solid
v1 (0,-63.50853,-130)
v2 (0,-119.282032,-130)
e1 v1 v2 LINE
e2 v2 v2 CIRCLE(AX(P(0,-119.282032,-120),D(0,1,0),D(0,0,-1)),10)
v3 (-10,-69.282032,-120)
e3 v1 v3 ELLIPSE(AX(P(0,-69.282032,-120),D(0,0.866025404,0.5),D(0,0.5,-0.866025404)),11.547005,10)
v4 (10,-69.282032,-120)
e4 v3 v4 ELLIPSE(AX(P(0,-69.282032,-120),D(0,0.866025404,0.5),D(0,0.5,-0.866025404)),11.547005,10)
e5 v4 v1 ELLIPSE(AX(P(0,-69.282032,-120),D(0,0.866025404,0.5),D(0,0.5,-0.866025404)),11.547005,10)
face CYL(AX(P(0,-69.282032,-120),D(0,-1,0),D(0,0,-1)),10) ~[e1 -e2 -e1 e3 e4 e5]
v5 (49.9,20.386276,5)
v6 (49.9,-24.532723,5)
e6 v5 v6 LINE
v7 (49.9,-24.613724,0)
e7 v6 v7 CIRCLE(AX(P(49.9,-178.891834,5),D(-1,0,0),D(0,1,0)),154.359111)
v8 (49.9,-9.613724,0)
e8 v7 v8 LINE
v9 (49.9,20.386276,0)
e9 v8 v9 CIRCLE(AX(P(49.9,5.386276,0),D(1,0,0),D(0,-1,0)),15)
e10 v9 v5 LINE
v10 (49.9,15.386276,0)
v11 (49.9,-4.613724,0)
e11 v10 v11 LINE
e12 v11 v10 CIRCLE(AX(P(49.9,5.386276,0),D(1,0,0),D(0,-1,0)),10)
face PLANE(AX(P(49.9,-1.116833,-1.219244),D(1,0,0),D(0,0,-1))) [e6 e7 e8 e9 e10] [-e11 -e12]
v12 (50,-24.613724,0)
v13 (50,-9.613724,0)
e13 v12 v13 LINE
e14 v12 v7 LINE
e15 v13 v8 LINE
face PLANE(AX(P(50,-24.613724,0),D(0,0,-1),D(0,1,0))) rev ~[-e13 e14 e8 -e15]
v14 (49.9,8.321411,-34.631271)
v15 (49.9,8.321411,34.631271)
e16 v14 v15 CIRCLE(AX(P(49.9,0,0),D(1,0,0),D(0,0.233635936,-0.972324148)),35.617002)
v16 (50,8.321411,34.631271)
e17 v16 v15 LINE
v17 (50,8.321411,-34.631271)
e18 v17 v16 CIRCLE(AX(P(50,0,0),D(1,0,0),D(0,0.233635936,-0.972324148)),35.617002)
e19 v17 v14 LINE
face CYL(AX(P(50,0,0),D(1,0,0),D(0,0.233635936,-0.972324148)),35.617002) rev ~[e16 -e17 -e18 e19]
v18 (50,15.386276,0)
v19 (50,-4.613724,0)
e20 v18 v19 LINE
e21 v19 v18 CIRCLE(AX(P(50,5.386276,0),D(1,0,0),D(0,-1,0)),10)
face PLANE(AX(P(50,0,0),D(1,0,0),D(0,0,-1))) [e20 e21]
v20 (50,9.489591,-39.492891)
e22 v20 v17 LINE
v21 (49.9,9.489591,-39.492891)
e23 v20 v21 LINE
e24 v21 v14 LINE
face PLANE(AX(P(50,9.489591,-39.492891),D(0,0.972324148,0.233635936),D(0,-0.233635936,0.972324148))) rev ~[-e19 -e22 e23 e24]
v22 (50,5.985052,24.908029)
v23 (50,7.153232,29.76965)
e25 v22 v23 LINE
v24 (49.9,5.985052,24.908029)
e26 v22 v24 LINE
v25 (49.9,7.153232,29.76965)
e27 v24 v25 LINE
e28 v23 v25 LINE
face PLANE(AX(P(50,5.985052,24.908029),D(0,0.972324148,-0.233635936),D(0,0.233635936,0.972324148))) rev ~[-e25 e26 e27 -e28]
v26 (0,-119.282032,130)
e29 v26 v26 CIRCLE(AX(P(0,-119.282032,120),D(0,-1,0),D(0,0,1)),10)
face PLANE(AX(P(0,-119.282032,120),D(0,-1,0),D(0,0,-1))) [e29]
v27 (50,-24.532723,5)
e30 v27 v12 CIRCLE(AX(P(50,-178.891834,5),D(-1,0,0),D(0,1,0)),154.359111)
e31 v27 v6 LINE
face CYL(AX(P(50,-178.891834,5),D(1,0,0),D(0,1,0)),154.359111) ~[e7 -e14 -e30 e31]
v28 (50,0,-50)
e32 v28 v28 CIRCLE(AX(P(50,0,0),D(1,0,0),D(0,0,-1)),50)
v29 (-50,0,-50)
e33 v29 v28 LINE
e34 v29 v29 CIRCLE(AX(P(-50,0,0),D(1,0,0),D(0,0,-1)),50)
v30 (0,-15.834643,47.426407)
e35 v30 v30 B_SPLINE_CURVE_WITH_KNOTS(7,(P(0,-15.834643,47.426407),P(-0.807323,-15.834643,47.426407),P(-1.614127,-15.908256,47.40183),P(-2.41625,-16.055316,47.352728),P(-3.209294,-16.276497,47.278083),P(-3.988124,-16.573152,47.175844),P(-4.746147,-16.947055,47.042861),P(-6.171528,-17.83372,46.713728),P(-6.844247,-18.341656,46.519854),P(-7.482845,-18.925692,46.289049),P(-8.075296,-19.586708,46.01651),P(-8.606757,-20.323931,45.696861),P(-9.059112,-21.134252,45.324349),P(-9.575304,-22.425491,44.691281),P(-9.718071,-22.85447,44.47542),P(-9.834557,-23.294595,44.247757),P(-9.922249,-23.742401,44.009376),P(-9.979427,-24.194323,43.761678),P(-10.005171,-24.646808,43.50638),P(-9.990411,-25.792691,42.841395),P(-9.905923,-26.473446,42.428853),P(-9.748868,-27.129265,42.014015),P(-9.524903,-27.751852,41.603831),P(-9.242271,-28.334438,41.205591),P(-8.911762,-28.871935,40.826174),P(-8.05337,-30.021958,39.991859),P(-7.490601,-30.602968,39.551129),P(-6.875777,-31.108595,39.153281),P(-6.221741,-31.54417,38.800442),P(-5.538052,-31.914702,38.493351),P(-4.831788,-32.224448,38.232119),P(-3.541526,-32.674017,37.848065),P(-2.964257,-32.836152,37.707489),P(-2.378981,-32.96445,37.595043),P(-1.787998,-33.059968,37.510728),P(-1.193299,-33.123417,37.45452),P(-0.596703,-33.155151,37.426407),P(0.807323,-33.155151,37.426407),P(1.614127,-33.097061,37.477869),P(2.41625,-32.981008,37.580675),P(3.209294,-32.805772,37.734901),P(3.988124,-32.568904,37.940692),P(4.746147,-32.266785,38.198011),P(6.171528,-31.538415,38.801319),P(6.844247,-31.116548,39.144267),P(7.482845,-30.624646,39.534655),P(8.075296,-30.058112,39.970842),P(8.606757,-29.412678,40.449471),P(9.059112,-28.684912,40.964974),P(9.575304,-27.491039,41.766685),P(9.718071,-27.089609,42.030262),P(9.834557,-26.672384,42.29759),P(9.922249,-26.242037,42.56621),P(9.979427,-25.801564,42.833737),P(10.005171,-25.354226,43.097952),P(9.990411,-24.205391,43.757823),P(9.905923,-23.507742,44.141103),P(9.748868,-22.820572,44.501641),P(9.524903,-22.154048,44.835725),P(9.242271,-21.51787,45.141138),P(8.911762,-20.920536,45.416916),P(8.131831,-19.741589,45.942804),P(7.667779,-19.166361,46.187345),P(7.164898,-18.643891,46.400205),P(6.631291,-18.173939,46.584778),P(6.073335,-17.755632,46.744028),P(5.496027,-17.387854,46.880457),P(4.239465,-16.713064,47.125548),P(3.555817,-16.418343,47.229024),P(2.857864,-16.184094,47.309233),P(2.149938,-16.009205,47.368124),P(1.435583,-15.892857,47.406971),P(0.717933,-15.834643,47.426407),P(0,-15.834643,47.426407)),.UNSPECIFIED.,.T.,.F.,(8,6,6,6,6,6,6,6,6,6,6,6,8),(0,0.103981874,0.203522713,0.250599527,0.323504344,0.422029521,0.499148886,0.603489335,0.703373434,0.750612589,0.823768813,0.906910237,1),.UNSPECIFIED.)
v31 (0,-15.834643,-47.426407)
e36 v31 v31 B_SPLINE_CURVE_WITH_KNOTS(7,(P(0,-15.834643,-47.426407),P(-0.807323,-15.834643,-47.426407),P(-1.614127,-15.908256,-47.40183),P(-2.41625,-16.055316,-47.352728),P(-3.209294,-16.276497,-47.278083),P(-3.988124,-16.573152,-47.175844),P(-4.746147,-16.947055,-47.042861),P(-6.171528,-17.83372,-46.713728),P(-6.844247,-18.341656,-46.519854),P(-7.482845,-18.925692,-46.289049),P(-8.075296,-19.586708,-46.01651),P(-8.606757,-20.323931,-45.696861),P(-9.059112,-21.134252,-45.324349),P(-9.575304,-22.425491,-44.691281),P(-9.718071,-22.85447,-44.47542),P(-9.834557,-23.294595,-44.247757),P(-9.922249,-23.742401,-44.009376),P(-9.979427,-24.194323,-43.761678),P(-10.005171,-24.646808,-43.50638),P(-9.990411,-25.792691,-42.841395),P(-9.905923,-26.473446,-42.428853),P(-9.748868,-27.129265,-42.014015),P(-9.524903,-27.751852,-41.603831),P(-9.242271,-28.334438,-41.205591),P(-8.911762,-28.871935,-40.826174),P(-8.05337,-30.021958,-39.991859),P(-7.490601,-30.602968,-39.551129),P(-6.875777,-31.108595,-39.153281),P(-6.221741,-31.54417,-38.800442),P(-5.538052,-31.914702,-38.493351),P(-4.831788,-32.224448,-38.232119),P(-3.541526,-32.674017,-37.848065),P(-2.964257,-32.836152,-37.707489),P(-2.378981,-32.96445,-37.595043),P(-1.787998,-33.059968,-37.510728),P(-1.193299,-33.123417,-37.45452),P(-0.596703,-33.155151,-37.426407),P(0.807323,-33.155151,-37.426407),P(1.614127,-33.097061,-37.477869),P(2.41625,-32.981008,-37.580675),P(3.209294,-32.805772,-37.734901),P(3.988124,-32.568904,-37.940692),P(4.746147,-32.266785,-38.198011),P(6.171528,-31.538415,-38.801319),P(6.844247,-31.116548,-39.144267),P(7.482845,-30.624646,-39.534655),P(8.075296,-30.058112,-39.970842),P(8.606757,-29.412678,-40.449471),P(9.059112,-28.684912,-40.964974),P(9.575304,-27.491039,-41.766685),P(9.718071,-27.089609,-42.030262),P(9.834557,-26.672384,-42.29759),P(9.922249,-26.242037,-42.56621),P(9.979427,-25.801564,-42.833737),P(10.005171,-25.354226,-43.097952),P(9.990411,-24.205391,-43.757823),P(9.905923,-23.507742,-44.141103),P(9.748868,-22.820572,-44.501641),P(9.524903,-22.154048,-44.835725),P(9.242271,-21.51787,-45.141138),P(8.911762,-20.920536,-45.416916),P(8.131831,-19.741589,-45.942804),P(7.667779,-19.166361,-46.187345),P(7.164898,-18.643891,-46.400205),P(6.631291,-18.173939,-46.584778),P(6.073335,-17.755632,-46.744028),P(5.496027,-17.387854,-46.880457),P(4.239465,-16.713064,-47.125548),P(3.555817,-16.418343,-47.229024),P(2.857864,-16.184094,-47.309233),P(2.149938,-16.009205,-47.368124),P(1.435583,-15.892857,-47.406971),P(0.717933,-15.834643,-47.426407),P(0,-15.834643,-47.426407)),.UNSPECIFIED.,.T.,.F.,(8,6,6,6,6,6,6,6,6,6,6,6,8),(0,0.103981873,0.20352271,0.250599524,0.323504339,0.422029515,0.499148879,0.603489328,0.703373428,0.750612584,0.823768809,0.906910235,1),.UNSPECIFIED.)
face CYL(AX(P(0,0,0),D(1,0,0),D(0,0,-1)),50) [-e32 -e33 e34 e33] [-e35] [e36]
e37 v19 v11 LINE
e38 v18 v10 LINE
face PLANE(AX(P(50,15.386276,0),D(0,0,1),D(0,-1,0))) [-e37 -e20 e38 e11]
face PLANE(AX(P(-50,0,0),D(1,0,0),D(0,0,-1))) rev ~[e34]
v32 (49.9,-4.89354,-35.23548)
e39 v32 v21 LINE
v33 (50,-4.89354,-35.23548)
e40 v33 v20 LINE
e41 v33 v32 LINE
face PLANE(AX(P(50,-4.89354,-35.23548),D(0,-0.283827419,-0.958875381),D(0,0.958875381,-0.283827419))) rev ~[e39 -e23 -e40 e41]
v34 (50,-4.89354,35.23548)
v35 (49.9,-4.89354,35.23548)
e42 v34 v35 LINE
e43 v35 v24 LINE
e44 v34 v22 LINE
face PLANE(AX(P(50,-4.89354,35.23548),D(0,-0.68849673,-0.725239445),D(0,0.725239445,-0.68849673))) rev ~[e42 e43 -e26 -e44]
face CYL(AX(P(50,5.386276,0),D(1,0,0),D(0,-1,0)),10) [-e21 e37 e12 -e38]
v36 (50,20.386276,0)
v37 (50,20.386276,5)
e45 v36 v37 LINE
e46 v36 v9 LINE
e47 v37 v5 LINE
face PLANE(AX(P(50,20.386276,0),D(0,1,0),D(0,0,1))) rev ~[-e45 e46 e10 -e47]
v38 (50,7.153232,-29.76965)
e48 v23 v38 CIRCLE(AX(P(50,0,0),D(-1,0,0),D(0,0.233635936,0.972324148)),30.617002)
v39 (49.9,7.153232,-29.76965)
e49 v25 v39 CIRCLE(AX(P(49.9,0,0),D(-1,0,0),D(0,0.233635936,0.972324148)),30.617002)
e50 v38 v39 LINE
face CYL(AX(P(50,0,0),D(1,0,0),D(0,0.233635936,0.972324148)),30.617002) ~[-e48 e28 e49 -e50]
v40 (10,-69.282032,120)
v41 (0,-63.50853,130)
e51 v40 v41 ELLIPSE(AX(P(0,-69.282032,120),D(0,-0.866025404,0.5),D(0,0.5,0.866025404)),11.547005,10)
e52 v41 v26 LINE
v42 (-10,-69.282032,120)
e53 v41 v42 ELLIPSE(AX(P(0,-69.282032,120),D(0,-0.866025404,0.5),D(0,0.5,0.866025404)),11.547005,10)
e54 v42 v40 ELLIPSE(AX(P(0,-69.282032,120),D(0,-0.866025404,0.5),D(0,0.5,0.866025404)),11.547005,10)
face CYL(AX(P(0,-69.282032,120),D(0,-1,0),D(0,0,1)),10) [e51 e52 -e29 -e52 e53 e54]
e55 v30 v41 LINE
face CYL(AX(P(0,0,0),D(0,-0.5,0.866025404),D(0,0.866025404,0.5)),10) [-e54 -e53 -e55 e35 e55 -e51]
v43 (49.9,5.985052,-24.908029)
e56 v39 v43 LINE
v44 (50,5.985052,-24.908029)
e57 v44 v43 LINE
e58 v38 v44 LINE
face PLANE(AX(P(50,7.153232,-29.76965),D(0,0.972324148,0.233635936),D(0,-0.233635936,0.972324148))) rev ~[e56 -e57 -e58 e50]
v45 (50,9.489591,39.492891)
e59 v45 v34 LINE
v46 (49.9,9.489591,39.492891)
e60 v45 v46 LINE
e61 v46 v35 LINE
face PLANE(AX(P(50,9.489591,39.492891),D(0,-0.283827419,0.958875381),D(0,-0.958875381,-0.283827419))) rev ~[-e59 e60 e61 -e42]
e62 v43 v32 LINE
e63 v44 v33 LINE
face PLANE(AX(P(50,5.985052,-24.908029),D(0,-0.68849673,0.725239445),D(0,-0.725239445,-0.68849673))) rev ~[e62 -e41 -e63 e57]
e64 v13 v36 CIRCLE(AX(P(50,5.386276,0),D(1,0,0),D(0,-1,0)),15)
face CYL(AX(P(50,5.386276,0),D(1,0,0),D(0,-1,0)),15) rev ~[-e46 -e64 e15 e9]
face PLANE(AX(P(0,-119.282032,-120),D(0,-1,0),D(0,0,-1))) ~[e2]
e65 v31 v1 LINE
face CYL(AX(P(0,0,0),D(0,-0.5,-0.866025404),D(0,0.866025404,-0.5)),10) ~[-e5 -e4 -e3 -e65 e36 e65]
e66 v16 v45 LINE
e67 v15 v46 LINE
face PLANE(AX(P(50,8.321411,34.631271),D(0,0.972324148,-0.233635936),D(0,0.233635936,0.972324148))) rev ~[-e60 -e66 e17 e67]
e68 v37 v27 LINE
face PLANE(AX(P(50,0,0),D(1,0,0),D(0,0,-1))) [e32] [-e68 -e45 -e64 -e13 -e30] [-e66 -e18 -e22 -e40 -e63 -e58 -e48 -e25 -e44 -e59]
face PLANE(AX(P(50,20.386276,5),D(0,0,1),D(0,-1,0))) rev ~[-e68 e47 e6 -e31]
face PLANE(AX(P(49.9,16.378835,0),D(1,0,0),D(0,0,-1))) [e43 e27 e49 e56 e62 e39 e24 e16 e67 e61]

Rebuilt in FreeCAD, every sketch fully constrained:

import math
import FreeCAD as App
import Part
import Sketcher
Q = App.Units.Quantity

doc = App.newDocument("Part")
params = doc.addObject("Spreadsheet::Sheet", "Params")
for row, (alias, value) in enumerate([
    ("sketch1_diameter", "100 mm"),
    ("pad1_length", "100 mm"),
    ("sketch2_diameter", "20 mm"),
    ("sketch3_width", "50 mm"),
    ("sketch4_radius", "15 mm"),
    ("sketch4_radius2", "10 mm"),
    ("sketch4_width", "15 mm"),
    ("sketch4_height", "5 mm"),
    ("sketch4_length", "5 mm"),
    ("pocket1_length", "0.1 mm"),
], start=1):
    params.set(f"A{row}", alias)
    params.set(f"B{row}", "=" + value)
    params.setAlias(f"B{row}", alias)

body = doc.addObject("PartDesign::Body", "Body")

# Sketch on YZ plane
sketch1 = body.newObject("Sketcher::SketchObject", "Sketch")
sketch1.AttachmentSupport = (doc.getObject("YZ_Plane"), [""])
sketch1.MapMode = "FlatFace"
sketch1.addGeometry(Part.Circle(App.Vector(0, 0, 0), App.Vector(0, 0, 1), 50), False)
sketch1.addConstraint([
    Sketcher.Constraint("Coincident", 0, 3, -1, 1),
    Sketcher.Constraint("Diameter", 0, Q("100 mm")),
])
sketch1.setExpression("Constraints[1]", "Params.sketch1_diameter")
pad1 = body.newObject("PartDesign::Pad", "Pad")
pad1.Profile = sketch1
pad1.setExpression("Length", "Params.pad1_length")
pad1.Midplane = True

# Sketch on an angled plane
sketch2 = body.newObject("Sketcher::SketchObject", "Sketch001")
sketch2.Placement = App.Placement(App.Vector(0, 0, 0), App.Rotation(App.Vector(0, 0.866025404, 0.5), App.Vector(-1, 0, 0), App.Vector(0, -0.5, 0.866025404), "ZXY"))
sketch2.addGeometry(Part.Circle(App.Vector(0, 0, 0), App.Vector(0, 0, 1), 10), False)
sketch2.addConstraint([
    Sketcher.Constraint("Coincident", 0, 3, -1, 1),
    Sketcher.Constraint("Diameter", 0, Q("20 mm")),
])
sketch2.setExpression("Constraints[1]", "Params.sketch2_diameter")

# Sketch on YZ plane
sketch3 = body.newObject("Sketcher::SketchObject", "Sketch002")
sketch3.AttachmentSupport = (doc.getObject("YZ_Plane"), [""])
sketch3.MapMode = "FlatFace"
sketch3.addGeometry([
    Part.LineSegment(App.Vector(0, 0, 0), App.Vector(-69, 120, 0)),
    Part.LineSegment(App.Vector(-69, 120, 0), App.Vector(-119, 120, 0)),
], False)
sketch3.addConstraint([
    Sketcher.Constraint("Coincident", 0, 2, 1, 1),
    Sketcher.Constraint("Horizontal", 1),
    Sketcher.Constraint("Coincident", 0, 1, -1, 1),
    Sketcher.Constraint("DistanceX", 1, 2, 1, 1, Q("50 mm")),
    Sketcher.Constraint("Angle", 0, Q("120 deg")),
    Sketcher.Constraint("DistanceY", -1, 1, 0, 2, Q("120 mm")),
])
sketch3.setExpression("Constraints[3]", "Params.sketch3_width")
doc.recompute()

additivepipe = body.newObject("PartDesign::AdditivePipe", "AdditivePipe")
additivepipe.Profile = sketch2
additivepipe.Spine = (sketch3, ["Edge1", "Edge2"])
additivepipe.Transition = "Right corner"
doc.recompute()

mirrored = body.newObject("PartDesign::Mirrored", "Mirrored")
mirrored.Originals = [additivepipe]
mirrored.MirrorPlane = (doc.getObject("XY_Plane"), [""])
body.Tip = mirrored

# Sketch on YZ plane
sketch4 = body.newObject("Sketcher::SketchObject", "Sketch003")
sketch4.AttachmentSupport = (doc.getObject("YZ_Plane"), [""])
sketch4.MapMode = "FlatFace"
sketch4.AttachmentOffset = App.Placement(App.Vector(0, 0, 50), App.Rotation())
sketch4.addGeometry([
    Part.LineSegment(App.Vector(8.3, 34.6, 0), App.Vector(9.5, 39.5, 0)),  # 0
    Part.LineSegment(App.Vector(9.5, 39.5, 0), App.Vector(-4.9, 35.2, 0)),  # 1
    Part.LineSegment(App.Vector(-4.9, 35.2, 0), App.Vector(6, 24.9, 0)),  # 2
    Part.LineSegment(App.Vector(6, 24.9, 0), App.Vector(7.2, 29.8, 0)),  # 3
    Part.ArcOfCircle(Part.Circle(App.Vector(0, 0, 0), App.Vector(0, 0, 1), 30.6), math.radians(-76), math.radians(76)),  # 4
    Part.LineSegment(App.Vector(7.2, -29.8, 0), App.Vector(6, -24.9, 0)),  # 5
    Part.LineSegment(App.Vector(6, -24.9, 0), App.Vector(-4.9, -35.2, 0)),  # 6
    Part.LineSegment(App.Vector(-4.9, -35.2, 0), App.Vector(9.5, -39.5, 0)),  # 7
    Part.LineSegment(App.Vector(9.5, -39.5, 0), App.Vector(8.3, -34.6, 0)),  # 8
    Part.ArcOfCircle(Part.Circle(App.Vector(0, 0, 0), App.Vector(0, 0, 1), 35.6), math.radians(-76), math.radians(76)),  # 9
    Part.LineSegment(App.Vector(20.4, 5, 0), App.Vector(-24.5, 5, 0)),  # 10
    Part.ArcOfCircle(Part.Circle(App.Vector(-178.9, 5, 0), App.Vector(0, 0, 1), 154.4), math.radians(-1.86), math.radians(0)),  # 11
    Part.LineSegment(App.Vector(-24.6, 0, 0), App.Vector(-9.6, 0, 0)),  # 12
    Part.ArcOfCircle(Part.Circle(App.Vector(5.4, 0, 0), App.Vector(0, 0, 1), 15), math.radians(180), math.radians(360)),  # 13
    Part.LineSegment(App.Vector(20.4, 0, 0), App.Vector(20.4, 5, 0)),  # 14
    Part.LineSegment(App.Vector(-4.6, 0, 0), App.Vector(15.4, 0, 0)),  # 15
    Part.ArcOfCircle(Part.Circle(App.Vector(5.4, 0, 0), App.Vector(0, 0, 1), 10), math.radians(180), math.radians(360)),  # 16
], False)
sketch4.addConstraint([
    Sketcher.Constraint("Coincident", 0, 2, 1, 1),
    Sketcher.Constraint("Coincident", 1, 2, 2, 1),
    Sketcher.Constraint("Coincident", 2, 2, 3, 1),
    Sketcher.Constraint("Coincident", 3, 2, 4, 2),
    Sketcher.Constraint("Coincident", 4, 1, 5, 1),
    Sketcher.Constraint("Coincident", 5, 2, 6, 1),
    Sketcher.Constraint("Coincident", 6, 2, 7, 1),
    Sketcher.Constraint("Coincident", 7, 2, 8, 1),
    Sketcher.Constraint("Coincident", 8, 2, 9, 1),
    Sketcher.Constraint("Coincident", 9, 2, 0, 1),
    Sketcher.Constraint("Coincident", 10, 2, 11, 2),
    Sketcher.Constraint("Coincident", 11, 1, 12, 1),
    Sketcher.Constraint("Coincident", 12, 2, 13, 1),
    Sketcher.Constraint("Tangent", 13, 2, 14, 1),
    Sketcher.Constraint("Coincident", 14, 2, 10, 1),
    Sketcher.Constraint("Coincident", 15, 1, 16, 1),
    Sketcher.Constraint("Coincident", 16, 2, 15, 2),
    Sketcher.Constraint("Horizontal", 10),
    Sketcher.Constraint("Horizontal", 12),
    Sketcher.Constraint("Vertical", 14),
    Sketcher.Constraint("Horizontal", 15),
    Sketcher.Constraint("Coincident", 4, 3, -1, 1),
    Sketcher.Constraint("Coincident", 9, 3, -1, 1),
    Sketcher.Constraint("Coincident", 16, 3, 13, 3),
    Sketcher.Constraint("Symmetric", 2, 2, 5, 2, -1),
    Sketcher.Constraint("Symmetric", 1, 2, 6, 2, -1),
    Sketcher.Constraint("Symmetric", 0, 2, 7, 2, -1),
    Sketcher.Constraint("PointOnObject", 13, 3, -1),
    Sketcher.Constraint("PointOnObject", 11, 1, -1),
    Sketcher.Constraint("PointOnObject", 15, 1, -1),
    Sketcher.Constraint("Parallel", 0, 3),
    Sketcher.Constraint("Parallel", 5, 8),
    Sketcher.Constraint("Horizontal", 11, 3, 10, 2),
    Sketcher.Constraint("Vertical", 3, 2, 4, 1),
    Sketcher.Constraint("Equal", 1, 2),
    Sketcher.Constraint("Equal", 0, 3),
    Sketcher.Constraint("Radius", 13, Q("15 mm")),
    Sketcher.Constraint("Radius", 16, Q("10 mm")),
    Sketcher.Constraint("DistanceX", 12, 1, 12, 2, Q("15 mm")),
    Sketcher.Constraint("DistanceY", 14, 1, 14, 2, Q("5 mm")),
    Sketcher.Constraint("Distance", 0, Q("5 mm")),
    Sketcher.Constraint("Distance", 1, Q("15 mm")),
    Sketcher.Constraint("Radius", 4, Q("30.617002 mm")),
    Sketcher.Constraint("Radius", 9, Q("35.617002 mm")),
    Sketcher.Constraint("Radius", 11, Q("154.359111 mm")),
    Sketcher.Constraint("DistanceX", -1, 1, 0, 2, Q("9.489591 mm")),
    Sketcher.Constraint("DistanceX", 1, 2, -1, 1, Q("4.89354 mm")),
    Sketcher.Constraint("DistanceX", -1, 1, 3, 2, Q("7.153232 mm")),
    Sketcher.Constraint("DistanceX", 11, 3, -1, 1, Q("178.891834 mm")),
])
sketch4.setExpression("Constraints[36]", "Params.sketch4_radius")
sketch4.setExpression("Constraints[37]", "Params.sketch4_radius2")
sketch4.setExpression("Constraints[38]", "Params.sketch4_width")
sketch4.setExpression("Constraints[39]", "Params.sketch4_height")
sketch4.setExpression("Constraints[40]", "Params.sketch4_length")
pocket1 = body.newObject("PartDesign::Pocket", "Pocket")
pocket1.Profile = sketch4
pocket1.setExpression("Length", "Params.pocket1_length")

doc.recompute()
